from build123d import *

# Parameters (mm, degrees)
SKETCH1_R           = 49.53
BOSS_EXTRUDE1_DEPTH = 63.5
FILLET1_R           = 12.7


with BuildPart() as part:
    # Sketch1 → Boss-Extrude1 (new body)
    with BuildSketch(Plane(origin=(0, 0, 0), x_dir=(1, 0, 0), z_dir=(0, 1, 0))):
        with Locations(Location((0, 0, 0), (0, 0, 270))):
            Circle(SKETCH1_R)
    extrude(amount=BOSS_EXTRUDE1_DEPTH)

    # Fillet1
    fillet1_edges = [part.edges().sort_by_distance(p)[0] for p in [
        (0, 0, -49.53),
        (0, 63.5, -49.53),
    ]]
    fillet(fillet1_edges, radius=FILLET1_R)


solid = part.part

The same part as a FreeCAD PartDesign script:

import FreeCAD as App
import Part
import Sketcher
from FreeCAD import Vector
Q = App.Units.Quantity


def edges_at(feature, points):
    """Names of the edges that pass closest to the given points."""
    edges = feature.Shape.Edges
    near = lambda p: min(range(len(edges)), key=lambda i: edges[i].distToShape(Part.Vertex(*p))[0])
    return sorted({f"Edge{near(p) + 1}" for p in points})

doc = App.newDocument("Part")
body = doc.addObject("PartDesign::Body", "Body")

sketch1 = body.newObject("Sketcher::SketchObject", "Sketch")
sketch1.AttachmentSupport = (doc.getObject("XZ_Plane"), [""])
sketch1.MapMode = "FlatFace"
sketch1.addGeometry(Part.Circle(Vector(0, 0, 0), Vector(0, 0, 1), 50), False)
sketch1.addConstraint(Sketcher.Constraint("Coincident", 0, 3, -1, 1))
sketch1.addConstraint(Sketcher.Constraint("Diameter", 0, Q("3.9 in")))
pad1 = body.newObject("PartDesign::Pad", "Pad")
pad1.Profile = sketch1
pad1.Length = Q("2.5 in")
pad1.Reversed = True
doc.recompute()

fillet = body.newObject("PartDesign::Fillet", "Fillet")
fillet.Base = (pad1, edges_at(pad1, [(0, 0, -49.53), (0, 63.5, -49.53)]))
fillet.Radius = Q("0.5 in")

doc.recompute()
